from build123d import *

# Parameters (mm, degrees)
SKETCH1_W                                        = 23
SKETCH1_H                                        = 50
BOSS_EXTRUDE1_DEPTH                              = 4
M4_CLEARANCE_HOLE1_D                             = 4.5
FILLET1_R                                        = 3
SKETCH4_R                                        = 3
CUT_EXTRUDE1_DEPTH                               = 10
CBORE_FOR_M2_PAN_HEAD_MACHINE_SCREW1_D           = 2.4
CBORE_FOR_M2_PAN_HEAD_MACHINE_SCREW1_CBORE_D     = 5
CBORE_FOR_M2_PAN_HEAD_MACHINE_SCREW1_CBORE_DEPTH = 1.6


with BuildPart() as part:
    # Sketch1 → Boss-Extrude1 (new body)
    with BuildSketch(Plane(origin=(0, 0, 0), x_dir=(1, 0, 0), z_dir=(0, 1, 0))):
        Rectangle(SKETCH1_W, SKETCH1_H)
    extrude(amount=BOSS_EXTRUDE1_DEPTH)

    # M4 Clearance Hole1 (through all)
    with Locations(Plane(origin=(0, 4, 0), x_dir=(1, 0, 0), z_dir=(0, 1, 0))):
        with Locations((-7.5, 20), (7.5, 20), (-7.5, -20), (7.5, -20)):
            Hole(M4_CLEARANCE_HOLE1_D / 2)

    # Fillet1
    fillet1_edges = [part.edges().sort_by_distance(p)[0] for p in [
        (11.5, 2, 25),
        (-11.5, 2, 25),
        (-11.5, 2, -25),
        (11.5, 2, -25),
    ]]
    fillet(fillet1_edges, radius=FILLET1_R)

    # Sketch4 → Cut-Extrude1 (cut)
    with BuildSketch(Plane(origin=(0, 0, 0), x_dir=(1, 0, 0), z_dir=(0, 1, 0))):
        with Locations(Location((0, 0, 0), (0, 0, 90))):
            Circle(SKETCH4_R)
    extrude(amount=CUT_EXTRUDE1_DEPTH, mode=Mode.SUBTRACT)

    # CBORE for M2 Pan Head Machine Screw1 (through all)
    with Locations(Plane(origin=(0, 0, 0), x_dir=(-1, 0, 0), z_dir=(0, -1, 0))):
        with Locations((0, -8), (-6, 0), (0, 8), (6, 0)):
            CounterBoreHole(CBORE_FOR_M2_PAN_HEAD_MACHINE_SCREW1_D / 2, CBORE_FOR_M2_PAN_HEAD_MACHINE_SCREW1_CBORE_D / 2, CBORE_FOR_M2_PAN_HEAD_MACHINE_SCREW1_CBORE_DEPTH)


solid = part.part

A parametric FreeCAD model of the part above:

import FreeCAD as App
import Part
import Sketcher


def edges_at(feature, points):
    """Names of the edges that pass closest to the given points."""
    edges = feature.Shape.Edges
    near = lambda p: min(range(len(edges)), key=lambda i: edges[i].distToShape(Part.Vertex(*p))[0])
    return sorted({f"Edge{near(p) + 1}" for p in points})


def add_polygon(sketch, points):
    """Adds a closed chain of lines whose ends are joined by coincident constraints."""
    first, n = sketch.GeometryCount, len(points)
    for a, b in zip(points, points[1:] + points[:1]):
        sketch.addGeometry(Part.LineSegment(App.Vector(*a, 0), App.Vector(*b, 0)), False)
    for i in range(n):
        sketch.addConstraint(Sketcher.Constraint("Coincident", first + i, 2, first + (i + 1) % n, 1))

doc = App.newDocument("Part")
body = doc.addObject("PartDesign::Body", "Body")

sketch1 = body.newObject("Sketcher::SketchObject", "Sketch")
sketch1.AttachmentSupport = (doc.getObject("XZ_Plane"), [""])
sketch1.MapMode = "FlatFace"
add_polygon(sketch1, [(-12, -25), (-12, 25), (12, 25), (12, -25)])
sketch1.addConstraint(Sketcher.Constraint("Vertical", 0))
sketch1.addConstraint(Sketcher.Constraint("Horizontal", 1))
sketch1.addConstraint(Sketcher.Constraint("Vertical", 2))
sketch1.addConstraint(Sketcher.Constraint("Horizontal", 3))
sketch1.addConstraint(Sketcher.Constraint("Symmetric", 0, 2, 2, 2, -1, 1))
sketch1.addConstraint(Sketcher.Constraint("DistanceX", 1, 1, 1, 2, 23.0))
sketch1.addConstraint(Sketcher.Constraint("DistanceY", 0, 1, 0, 2, 50.0))
pad1 = body.newObject("PartDesign::Pad", "Pad")
pad1.Profile = sketch1
pad1.Length = 4
pad1.Reversed = True

sketch2 = body.newObject("Sketcher::SketchObject", "Sketch001")
sketch2.AttachmentSupport = (doc.getObject("XZ_Plane"), [""])
sketch2.MapMode = "FlatFace"
sketch2.AttachmentOffset = App.Placement(App.Vector(0, 0, -4), App.Rotation())
sketch2.addGeometry(Part.Circle(App.Vector(-7.5, -20, 0), App.Vector(0, 0, 1), 2.2), False)
sketch2.addGeometry(Part.Circle(App.Vector(7.5, -20, 0), App.Vector(0, 0, 1), 2.2), False)
sketch2.addGeometry(Part.Circle(App.Vector(-7.5, 20, 0), App.Vector(0, 0, 1), 2.2), False)
sketch2.addGeometry(Part.Circle(App.Vector(7.5, 20, 0), App.Vector(0, 0, 1), 2.2), False)
sketch2.addConstraint(Sketcher.Constraint("Equal", 0, 1))
sketch2.addConstraint(Sketcher.Constraint("Equal", 1, 2))
sketch2.addConstraint(Sketcher.Constraint("Equal", 2, 3))
sketch2.addConstraint(Sketcher.Constraint("Symmetric", 1, 3, 2, 3, -1, 1))
sketch2.addConstraint(Sketcher.Constraint("Symmetric", 0, 3, 3, 3, -1, 1))
sketch2.addConstraint(Sketcher.Constraint("Symmetric", 0, 3, 1, 3, -2))
sketch2.addConstraint(Sketcher.Constraint("Diameter", 0, 4.5))
sketch2.addConstraint(Sketcher.Constraint("DistanceY", 0, 3, -1, 1, 20.0))
sketch2.addConstraint(Sketcher.Constraint("DistanceX", 0, 3, 1, 3, 15.0))
doc.recompute()
hole = body.newObject("PartDesign::Hole", "Hole")
hole.Profile = sketch2
hole.ThreadType = "None"
hole.Diameter = 4.5
hole.DepthType = "ThroughAll"
hole.Reversed = True
doc.recompute()

fillet = body.newObject("PartDesign::Fillet", "Fillet")
fillet.Base = (hole, edges_at(hole, [
    (11.5, 2, 25),
    (-11.5, 2, 25),
    (-11.5, 2, -25),
    (11.5, 2, -25),
]))
fillet.Radius = 3

sketch3 = body.newObject("Sketcher::SketchObject", "Sketch002")
sketch3.AttachmentSupport = (doc.getObject("XZ_Plane"), [""])
sketch3.MapMode = "FlatFace"
sketch3.addGeometry(Part.Circle(App.Vector(0, 0, 0), App.Vector(0, 0, 1), 3), False)
sketch3.addConstraint(Sketcher.Constraint("Coincident", 0, 3, -1, 1))
sketch3.addConstraint(Sketcher.Constraint("Diameter", 0, 6.0))
pocket1 = body.newObject("PartDesign::Pocket", "Pocket")
pocket1.Profile = sketch3
pocket1.Length = 10

sketch4 = body.newObject("Sketcher::SketchObject", "Sketch003")
sketch4.AttachmentSupport = (doc.getObject("XZ_Plane"), [""])
sketch4.MapMode = "FlatFace"
sketch4.addGeometry(Part.Circle(App.Vector(0, 8, 0), App.Vector(0, 0, 1), 1.2), False)
sketch4.addGeometry(Part.Circle(App.Vector(6, 0, 0), App.Vector(0, 0, 1), 1.2), False)
sketch4.addGeometry(Part.Circle(App.Vector(0, -8, 0), App.Vector(0, 0, 1), 1.2), False)
sketch4.addGeometry(Part.Circle(App.Vector(-6, 0, 0), App.Vector(0, 0, 1), 1.2), False)
sketch4.addConstraint(Sketcher.Constraint("Equal", 0, 1))
sketch4.addConstraint(Sketcher.Constraint("Equal", 1, 2))
sketch4.addConstraint(Sketcher.Constraint("Equal", 2, 3))
sketch4.addConstraint(Sketcher.Constraint("Symmetric", 0, 3, 2, 3, -1, 1))
sketch4.addConstraint(Sketcher.Constraint("Symmetric", 1, 3, 3, 3, -1, 1))
sketch4.addConstraint(Sketcher.Constraint("PointOnObject", 0, 3, -2))
sketch4.addConstraint(Sketcher.Constraint("PointOnObject", 1, 3, -1))
sketch4.addConstraint(Sketcher.Constraint("Diameter", 0, 2.4))
sketch4.addConstraint(Sketcher.Constraint("DistanceY", -1, 1, 0, 3, 8.0))
sketch4.addConstraint(Sketcher.Constraint("DistanceX", -1, 1, 1, 3, 6.0))
doc.recompute()
hole2 = body.newObject("PartDesign::Hole", "Hole001")
hole2.Profile = sketch4
hole2.ThreadType = "None"
hole2.Diameter = 2.4
hole2.DepthType = "ThroughAll"
hole2.HoleCutType = "Counterbore"
hole2.HoleCutDiameter = 5
hole2.HoleCutDepth = 1.6

doc.recompute()
